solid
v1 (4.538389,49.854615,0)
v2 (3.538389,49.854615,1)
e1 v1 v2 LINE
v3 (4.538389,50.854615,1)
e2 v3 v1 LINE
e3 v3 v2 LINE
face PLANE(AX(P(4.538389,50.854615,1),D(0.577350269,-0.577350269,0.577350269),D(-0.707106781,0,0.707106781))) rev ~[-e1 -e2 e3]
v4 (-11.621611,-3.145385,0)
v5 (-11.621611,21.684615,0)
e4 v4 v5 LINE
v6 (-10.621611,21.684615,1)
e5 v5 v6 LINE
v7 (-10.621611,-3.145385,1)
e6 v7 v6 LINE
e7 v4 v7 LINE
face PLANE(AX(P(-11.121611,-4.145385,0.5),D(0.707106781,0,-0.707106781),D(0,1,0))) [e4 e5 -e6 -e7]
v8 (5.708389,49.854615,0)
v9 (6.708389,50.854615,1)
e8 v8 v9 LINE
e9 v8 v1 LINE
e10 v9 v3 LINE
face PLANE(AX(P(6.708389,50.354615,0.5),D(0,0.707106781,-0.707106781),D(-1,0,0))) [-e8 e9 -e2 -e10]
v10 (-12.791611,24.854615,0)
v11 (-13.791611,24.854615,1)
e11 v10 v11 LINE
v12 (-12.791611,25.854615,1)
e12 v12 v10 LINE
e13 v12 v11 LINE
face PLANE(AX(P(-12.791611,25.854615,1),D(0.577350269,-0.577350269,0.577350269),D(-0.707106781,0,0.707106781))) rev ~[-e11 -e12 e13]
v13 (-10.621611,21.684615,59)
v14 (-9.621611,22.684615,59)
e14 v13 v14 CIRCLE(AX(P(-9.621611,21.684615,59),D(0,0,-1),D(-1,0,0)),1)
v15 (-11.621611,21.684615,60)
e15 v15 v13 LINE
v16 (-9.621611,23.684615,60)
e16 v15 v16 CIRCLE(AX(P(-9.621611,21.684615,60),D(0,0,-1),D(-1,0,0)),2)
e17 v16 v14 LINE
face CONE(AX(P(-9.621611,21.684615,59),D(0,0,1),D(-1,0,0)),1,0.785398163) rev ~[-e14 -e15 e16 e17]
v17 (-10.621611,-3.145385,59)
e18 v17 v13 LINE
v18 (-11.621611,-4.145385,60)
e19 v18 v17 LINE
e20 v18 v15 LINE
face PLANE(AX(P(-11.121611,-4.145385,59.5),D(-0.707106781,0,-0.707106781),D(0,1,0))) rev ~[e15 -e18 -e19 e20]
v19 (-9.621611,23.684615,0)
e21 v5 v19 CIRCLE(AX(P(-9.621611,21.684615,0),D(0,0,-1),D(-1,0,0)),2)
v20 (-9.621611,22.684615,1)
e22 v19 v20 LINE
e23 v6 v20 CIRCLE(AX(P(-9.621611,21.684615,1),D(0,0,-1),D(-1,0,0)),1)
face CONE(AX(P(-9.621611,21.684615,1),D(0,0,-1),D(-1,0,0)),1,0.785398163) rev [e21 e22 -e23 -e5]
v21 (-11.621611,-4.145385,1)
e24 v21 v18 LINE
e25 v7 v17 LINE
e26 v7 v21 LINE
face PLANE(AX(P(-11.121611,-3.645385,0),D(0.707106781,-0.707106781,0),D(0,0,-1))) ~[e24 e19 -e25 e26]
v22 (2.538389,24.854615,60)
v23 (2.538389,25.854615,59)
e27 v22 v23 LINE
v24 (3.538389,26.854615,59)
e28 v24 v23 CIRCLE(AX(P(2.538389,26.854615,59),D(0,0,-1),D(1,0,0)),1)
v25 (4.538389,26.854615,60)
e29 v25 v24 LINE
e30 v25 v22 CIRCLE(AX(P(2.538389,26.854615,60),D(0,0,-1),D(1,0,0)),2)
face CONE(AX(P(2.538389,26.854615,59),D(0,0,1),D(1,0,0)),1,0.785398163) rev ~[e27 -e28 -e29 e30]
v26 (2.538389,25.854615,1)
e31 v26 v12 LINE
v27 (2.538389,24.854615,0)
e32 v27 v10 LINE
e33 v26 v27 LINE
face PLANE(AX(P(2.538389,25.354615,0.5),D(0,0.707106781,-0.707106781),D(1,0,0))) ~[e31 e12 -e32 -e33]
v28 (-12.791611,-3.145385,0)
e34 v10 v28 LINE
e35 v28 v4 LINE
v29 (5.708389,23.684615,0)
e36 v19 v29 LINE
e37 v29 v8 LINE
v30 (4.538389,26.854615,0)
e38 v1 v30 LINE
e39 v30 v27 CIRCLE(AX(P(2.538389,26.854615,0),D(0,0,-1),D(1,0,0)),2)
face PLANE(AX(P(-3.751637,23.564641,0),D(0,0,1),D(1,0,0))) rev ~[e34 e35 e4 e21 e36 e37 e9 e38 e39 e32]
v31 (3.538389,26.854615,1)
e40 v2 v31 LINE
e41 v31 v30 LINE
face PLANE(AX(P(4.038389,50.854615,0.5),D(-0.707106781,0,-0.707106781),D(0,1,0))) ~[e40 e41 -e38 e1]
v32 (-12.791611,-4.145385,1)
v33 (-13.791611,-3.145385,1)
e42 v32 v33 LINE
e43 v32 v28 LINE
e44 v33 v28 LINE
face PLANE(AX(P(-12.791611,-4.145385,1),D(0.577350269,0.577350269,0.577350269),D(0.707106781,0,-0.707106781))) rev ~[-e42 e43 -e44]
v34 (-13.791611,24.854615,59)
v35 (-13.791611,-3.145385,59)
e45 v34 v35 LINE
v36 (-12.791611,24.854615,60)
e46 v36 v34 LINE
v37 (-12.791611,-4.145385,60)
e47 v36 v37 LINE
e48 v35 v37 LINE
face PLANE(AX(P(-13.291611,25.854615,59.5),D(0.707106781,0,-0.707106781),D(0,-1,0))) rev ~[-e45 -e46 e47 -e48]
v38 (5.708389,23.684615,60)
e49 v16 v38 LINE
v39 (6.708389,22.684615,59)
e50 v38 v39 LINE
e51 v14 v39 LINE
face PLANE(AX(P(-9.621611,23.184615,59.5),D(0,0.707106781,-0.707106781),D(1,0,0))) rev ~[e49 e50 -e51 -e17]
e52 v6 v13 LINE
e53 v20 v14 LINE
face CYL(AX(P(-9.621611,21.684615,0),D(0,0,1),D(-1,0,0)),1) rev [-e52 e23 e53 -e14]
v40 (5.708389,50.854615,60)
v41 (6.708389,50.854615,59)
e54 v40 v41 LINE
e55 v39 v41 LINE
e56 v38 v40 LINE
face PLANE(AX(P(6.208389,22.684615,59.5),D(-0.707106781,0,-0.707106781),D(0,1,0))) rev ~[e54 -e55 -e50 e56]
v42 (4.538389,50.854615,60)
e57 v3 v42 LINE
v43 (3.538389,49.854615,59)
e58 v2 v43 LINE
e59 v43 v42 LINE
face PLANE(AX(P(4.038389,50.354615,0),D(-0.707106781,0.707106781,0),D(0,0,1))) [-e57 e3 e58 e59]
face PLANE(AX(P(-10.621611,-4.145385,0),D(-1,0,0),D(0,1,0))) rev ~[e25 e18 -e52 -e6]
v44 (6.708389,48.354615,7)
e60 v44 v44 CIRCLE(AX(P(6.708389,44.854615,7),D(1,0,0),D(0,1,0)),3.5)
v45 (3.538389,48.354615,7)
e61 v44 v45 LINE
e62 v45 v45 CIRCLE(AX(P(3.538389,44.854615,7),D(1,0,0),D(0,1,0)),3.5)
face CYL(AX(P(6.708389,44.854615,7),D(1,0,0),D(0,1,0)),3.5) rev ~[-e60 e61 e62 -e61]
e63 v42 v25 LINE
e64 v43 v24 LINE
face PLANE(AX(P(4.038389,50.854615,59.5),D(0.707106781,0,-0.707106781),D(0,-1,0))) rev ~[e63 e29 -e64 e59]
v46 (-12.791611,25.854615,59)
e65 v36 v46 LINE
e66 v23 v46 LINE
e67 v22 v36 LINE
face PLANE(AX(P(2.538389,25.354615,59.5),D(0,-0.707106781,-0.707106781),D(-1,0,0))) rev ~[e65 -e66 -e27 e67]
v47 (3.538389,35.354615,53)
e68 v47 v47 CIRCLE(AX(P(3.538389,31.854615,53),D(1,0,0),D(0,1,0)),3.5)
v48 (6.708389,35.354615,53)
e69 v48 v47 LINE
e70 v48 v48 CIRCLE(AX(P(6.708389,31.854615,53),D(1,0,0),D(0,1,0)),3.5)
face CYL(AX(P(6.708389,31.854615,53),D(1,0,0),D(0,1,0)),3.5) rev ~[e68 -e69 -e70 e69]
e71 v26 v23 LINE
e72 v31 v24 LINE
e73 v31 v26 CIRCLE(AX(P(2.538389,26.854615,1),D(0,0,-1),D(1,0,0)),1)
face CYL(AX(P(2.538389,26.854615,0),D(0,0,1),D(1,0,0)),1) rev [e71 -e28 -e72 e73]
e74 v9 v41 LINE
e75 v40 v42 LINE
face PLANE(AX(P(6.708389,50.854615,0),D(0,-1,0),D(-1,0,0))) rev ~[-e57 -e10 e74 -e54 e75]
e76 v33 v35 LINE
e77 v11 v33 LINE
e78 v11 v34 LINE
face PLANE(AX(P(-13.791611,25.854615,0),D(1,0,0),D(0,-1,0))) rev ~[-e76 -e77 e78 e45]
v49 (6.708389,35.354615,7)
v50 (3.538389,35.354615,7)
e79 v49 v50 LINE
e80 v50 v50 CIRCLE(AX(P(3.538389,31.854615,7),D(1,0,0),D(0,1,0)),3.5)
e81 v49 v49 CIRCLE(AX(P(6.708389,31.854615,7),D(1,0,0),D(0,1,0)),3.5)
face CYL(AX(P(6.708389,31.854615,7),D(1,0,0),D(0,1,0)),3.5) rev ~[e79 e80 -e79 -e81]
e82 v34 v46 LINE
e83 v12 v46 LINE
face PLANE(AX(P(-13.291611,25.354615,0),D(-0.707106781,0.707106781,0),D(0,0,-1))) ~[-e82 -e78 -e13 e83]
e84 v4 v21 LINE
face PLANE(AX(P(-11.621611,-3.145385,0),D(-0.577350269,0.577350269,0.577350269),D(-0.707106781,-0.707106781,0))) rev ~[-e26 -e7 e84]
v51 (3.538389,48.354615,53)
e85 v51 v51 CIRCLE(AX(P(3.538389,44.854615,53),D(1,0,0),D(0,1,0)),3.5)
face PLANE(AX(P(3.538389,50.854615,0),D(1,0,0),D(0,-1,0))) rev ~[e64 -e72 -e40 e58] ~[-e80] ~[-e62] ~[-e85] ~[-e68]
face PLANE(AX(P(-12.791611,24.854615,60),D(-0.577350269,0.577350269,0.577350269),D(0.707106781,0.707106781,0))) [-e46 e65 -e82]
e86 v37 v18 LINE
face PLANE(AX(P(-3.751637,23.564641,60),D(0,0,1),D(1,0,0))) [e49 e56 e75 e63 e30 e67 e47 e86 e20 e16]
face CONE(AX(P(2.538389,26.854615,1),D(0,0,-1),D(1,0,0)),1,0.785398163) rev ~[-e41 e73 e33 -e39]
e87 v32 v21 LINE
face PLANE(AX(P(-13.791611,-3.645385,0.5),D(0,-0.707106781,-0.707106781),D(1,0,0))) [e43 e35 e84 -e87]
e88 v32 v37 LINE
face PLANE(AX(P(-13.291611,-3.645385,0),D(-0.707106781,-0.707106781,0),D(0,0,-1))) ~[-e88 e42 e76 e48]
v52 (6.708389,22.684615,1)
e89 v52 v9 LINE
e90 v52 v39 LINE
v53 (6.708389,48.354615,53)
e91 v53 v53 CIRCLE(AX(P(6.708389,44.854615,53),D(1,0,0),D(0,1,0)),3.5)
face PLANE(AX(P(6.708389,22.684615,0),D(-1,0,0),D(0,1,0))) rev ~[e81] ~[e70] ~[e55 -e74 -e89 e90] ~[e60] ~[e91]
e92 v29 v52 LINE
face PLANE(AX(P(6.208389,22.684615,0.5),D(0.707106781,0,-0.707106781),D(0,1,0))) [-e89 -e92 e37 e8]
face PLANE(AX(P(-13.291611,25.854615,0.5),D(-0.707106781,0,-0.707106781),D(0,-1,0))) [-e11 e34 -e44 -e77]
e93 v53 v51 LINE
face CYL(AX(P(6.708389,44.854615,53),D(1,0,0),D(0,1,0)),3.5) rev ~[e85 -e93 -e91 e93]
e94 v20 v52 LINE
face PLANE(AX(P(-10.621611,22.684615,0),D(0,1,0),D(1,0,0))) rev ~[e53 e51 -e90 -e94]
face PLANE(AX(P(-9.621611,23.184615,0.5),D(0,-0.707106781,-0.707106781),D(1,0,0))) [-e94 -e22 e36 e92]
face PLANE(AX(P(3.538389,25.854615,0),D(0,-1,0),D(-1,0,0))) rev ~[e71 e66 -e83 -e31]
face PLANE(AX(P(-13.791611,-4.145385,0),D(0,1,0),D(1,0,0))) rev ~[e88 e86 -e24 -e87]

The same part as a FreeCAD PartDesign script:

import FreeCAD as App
import Part
import Sketcher

V = App.Vector


def edges_at(feature, points):
    """Names of the edges that pass closest to the given points."""
    edges = feature.Shape.Edges
    near = lambda p: min(range(len(edges)), key=lambda i: edges[i].distToShape(Part.Vertex(*p))[0])
    return sorted({f"Edge{near(p) + 1}" for p in points})


def add_polygon(sketch, points):
    """Adds a closed chain of lines whose ends are joined by coincident constraints."""
    first, n = sketch.GeometryCount, len(points)
    for a, b in zip(points, points[1:] + points[:1]):
        sketch.addGeometry(Part.LineSegment(App.Vector(*a, 0), App.Vector(*b, 0)), False)
    for i in range(n):
        sketch.addConstraint(Sketcher.Constraint("Coincident", first + i, 2, first + (i + 1) % n, 1))

doc = App.newDocument("Part")
body = doc.addObject("PartDesign::Body", "Body")

sketch1 = doc.addObject("Sketcher::SketchObject", "Sketch")
body.addObject(sketch1)
sketch1.AttachmentSupport = (doc.XY_Plane, [""])
sketch1.MapMode = "FlatFace"
add_polygon(sketch1, [(3.5, 50.9), (3.5, 25.9), (-13.8, 25.9), (-13.8, -4.1), (-10.6, -4.1), (-10.6, 22.7), (6.7, 22.7), (6.7, 50.9)])
sketch1.addConstraint([
    Sketcher.Constraint("Vertical", 0),
    Sketcher.Constraint("Horizontal", 1),
    Sketcher.Constraint("Vertical", 2),
    Sketcher.Constraint("Horizontal", 3),
    Sketcher.Constraint("Vertical", 4),
    Sketcher.Constraint("Horizontal", 5),
    Sketcher.Constraint("Vertical", 6),
    Sketcher.Constraint("Horizontal", 7),
    Sketcher.Constraint("Equal", 1, 5),
    Sketcher.Constraint("DistanceY", 0, 2, 0, 1, 25.0),
    Sketcher.Constraint("DistanceY", 2, 2, 2, 1, 30.0),
    Sketcher.Constraint("DistanceX", 1, 2, 1, 1, 17.33),
    Sketcher.Constraint("DistanceX", 3, 1, 3, 2, 3.17),
    Sketcher.Constraint("DistanceY", 4, 1, 4, 2, 26.83),
    Sketcher.Constraint("DistanceX", -1, 1, 0, 2, 3.538389),
    Sketcher.Constraint("DistanceY", -1, 1, 0, 2, 25.854615),
])
pad1 = doc.addObject("PartDesign::Pad", "Pad")
body.addObject(pad1)
pad1.Profile = sketch1
pad1.Length = 60

sketch2 = doc.addObject("Sketcher::SketchObject", "Sketch001")
body.addObject(sketch2)
sketch2.AttachmentSupport = (doc.YZ_Plane, [""])
sketch2.MapMode = "FlatFace"
sketch2.AttachmentOffset = App.Placement(V(0, 0, 6.708389), App.Rotation())
sketch2.addGeometry([
    Part.Circle(V(44.9, 53, 0), V(0, 0, 1), 3.5),
    Part.Circle(V(31.9, 53, 0), V(0, 0, 1), 3.5),
    Part.Circle(V(44.9, 7, 0), V(0, 0, 1), 3.5),
    Part.Circle(V(31.9, 7, 0), V(0, 0, 1), 3.5),
], False)
sketch2.addConstraint([
    Sketcher.Constraint("Equal", 0, 1),
    Sketcher.Constraint("Equal", 1, 2),
    Sketcher.Constraint("Equal", 2, 3),
    Sketcher.Constraint("Horizontal", 0, 3, 1, 3),
    Sketcher.Constraint("Horizontal", 2, 3, 3, 3),
    Sketcher.Constraint("Vertical", 0, 3, 2, 3),
    Sketcher.Constraint("Vertical", 1, 3, 3, 3),
    Sketcher.Constraint("Diameter", 0, 7.0),
    Sketcher.Constraint("DistanceY", -1, 1, 0, 3, 53.0),
    Sketcher.Constraint("DistanceY", -1, 1, 2, 3, 7.0),
    Sketcher.Constraint("DistanceX", 1, 3, 0, 3, 13.0),
    Sketcher.Constraint("DistanceX", -1, 1, 0, 3, 44.854615),
])
pocket1 = doc.addObject("PartDesign::Pocket", "Pocket")
body.addObject(pocket1)
pocket1.Profile = sketch2
pocket1.Length = 60
doc.recompute()

fillet = doc.addObject("PartDesign::Fillet", "Fillet")
body.addObject(fillet)
fillet.Base = (pocket1, edges_at(pocket1, [(-10.622, 22.685, 30), (3.538, 25.855, 30)]))
fillet.Radius = 1
doc.recompute()

chamfer = doc.addObject("PartDesign::Chamfer", "Chamfer")
body.addObject(chamfer)
chamfer.Base = (fillet, edges_at(fillet, [
    (-13.792, 10.855, 0),
    (3.538, 38.855, 0),
    (5.123, 50.855, 0),
    (-10.622, -4.145, 30),
    (-13.792, -4.145, 30),
    (-13.792, 25.855, 30),
    (3.538, 50.855, 30),
    (-13.792, 10.855, 60),
    (-10.622, 8.77, 60),
    (6.708, 36.77, 60),
    (-1.457, 22.685, 0),
    (-1.457, 22.685, 60),
    (-5.627, 25.855, 0),
    (-5.627, 25.855, 60),
    (-10.329, 22.392, 0),
    (-10.329, 22.392, 60),
    (3.245, 26.148, 0),
    (3.245, 26.148, 60),
    (6.708, 36.77, 0),
    (3.538, 38.855, 60),
    (-10.622, 8.77, 0),
    (-12.207, -4.145, 0),
]))
chamfer.Size = 1

doc.recompute()
